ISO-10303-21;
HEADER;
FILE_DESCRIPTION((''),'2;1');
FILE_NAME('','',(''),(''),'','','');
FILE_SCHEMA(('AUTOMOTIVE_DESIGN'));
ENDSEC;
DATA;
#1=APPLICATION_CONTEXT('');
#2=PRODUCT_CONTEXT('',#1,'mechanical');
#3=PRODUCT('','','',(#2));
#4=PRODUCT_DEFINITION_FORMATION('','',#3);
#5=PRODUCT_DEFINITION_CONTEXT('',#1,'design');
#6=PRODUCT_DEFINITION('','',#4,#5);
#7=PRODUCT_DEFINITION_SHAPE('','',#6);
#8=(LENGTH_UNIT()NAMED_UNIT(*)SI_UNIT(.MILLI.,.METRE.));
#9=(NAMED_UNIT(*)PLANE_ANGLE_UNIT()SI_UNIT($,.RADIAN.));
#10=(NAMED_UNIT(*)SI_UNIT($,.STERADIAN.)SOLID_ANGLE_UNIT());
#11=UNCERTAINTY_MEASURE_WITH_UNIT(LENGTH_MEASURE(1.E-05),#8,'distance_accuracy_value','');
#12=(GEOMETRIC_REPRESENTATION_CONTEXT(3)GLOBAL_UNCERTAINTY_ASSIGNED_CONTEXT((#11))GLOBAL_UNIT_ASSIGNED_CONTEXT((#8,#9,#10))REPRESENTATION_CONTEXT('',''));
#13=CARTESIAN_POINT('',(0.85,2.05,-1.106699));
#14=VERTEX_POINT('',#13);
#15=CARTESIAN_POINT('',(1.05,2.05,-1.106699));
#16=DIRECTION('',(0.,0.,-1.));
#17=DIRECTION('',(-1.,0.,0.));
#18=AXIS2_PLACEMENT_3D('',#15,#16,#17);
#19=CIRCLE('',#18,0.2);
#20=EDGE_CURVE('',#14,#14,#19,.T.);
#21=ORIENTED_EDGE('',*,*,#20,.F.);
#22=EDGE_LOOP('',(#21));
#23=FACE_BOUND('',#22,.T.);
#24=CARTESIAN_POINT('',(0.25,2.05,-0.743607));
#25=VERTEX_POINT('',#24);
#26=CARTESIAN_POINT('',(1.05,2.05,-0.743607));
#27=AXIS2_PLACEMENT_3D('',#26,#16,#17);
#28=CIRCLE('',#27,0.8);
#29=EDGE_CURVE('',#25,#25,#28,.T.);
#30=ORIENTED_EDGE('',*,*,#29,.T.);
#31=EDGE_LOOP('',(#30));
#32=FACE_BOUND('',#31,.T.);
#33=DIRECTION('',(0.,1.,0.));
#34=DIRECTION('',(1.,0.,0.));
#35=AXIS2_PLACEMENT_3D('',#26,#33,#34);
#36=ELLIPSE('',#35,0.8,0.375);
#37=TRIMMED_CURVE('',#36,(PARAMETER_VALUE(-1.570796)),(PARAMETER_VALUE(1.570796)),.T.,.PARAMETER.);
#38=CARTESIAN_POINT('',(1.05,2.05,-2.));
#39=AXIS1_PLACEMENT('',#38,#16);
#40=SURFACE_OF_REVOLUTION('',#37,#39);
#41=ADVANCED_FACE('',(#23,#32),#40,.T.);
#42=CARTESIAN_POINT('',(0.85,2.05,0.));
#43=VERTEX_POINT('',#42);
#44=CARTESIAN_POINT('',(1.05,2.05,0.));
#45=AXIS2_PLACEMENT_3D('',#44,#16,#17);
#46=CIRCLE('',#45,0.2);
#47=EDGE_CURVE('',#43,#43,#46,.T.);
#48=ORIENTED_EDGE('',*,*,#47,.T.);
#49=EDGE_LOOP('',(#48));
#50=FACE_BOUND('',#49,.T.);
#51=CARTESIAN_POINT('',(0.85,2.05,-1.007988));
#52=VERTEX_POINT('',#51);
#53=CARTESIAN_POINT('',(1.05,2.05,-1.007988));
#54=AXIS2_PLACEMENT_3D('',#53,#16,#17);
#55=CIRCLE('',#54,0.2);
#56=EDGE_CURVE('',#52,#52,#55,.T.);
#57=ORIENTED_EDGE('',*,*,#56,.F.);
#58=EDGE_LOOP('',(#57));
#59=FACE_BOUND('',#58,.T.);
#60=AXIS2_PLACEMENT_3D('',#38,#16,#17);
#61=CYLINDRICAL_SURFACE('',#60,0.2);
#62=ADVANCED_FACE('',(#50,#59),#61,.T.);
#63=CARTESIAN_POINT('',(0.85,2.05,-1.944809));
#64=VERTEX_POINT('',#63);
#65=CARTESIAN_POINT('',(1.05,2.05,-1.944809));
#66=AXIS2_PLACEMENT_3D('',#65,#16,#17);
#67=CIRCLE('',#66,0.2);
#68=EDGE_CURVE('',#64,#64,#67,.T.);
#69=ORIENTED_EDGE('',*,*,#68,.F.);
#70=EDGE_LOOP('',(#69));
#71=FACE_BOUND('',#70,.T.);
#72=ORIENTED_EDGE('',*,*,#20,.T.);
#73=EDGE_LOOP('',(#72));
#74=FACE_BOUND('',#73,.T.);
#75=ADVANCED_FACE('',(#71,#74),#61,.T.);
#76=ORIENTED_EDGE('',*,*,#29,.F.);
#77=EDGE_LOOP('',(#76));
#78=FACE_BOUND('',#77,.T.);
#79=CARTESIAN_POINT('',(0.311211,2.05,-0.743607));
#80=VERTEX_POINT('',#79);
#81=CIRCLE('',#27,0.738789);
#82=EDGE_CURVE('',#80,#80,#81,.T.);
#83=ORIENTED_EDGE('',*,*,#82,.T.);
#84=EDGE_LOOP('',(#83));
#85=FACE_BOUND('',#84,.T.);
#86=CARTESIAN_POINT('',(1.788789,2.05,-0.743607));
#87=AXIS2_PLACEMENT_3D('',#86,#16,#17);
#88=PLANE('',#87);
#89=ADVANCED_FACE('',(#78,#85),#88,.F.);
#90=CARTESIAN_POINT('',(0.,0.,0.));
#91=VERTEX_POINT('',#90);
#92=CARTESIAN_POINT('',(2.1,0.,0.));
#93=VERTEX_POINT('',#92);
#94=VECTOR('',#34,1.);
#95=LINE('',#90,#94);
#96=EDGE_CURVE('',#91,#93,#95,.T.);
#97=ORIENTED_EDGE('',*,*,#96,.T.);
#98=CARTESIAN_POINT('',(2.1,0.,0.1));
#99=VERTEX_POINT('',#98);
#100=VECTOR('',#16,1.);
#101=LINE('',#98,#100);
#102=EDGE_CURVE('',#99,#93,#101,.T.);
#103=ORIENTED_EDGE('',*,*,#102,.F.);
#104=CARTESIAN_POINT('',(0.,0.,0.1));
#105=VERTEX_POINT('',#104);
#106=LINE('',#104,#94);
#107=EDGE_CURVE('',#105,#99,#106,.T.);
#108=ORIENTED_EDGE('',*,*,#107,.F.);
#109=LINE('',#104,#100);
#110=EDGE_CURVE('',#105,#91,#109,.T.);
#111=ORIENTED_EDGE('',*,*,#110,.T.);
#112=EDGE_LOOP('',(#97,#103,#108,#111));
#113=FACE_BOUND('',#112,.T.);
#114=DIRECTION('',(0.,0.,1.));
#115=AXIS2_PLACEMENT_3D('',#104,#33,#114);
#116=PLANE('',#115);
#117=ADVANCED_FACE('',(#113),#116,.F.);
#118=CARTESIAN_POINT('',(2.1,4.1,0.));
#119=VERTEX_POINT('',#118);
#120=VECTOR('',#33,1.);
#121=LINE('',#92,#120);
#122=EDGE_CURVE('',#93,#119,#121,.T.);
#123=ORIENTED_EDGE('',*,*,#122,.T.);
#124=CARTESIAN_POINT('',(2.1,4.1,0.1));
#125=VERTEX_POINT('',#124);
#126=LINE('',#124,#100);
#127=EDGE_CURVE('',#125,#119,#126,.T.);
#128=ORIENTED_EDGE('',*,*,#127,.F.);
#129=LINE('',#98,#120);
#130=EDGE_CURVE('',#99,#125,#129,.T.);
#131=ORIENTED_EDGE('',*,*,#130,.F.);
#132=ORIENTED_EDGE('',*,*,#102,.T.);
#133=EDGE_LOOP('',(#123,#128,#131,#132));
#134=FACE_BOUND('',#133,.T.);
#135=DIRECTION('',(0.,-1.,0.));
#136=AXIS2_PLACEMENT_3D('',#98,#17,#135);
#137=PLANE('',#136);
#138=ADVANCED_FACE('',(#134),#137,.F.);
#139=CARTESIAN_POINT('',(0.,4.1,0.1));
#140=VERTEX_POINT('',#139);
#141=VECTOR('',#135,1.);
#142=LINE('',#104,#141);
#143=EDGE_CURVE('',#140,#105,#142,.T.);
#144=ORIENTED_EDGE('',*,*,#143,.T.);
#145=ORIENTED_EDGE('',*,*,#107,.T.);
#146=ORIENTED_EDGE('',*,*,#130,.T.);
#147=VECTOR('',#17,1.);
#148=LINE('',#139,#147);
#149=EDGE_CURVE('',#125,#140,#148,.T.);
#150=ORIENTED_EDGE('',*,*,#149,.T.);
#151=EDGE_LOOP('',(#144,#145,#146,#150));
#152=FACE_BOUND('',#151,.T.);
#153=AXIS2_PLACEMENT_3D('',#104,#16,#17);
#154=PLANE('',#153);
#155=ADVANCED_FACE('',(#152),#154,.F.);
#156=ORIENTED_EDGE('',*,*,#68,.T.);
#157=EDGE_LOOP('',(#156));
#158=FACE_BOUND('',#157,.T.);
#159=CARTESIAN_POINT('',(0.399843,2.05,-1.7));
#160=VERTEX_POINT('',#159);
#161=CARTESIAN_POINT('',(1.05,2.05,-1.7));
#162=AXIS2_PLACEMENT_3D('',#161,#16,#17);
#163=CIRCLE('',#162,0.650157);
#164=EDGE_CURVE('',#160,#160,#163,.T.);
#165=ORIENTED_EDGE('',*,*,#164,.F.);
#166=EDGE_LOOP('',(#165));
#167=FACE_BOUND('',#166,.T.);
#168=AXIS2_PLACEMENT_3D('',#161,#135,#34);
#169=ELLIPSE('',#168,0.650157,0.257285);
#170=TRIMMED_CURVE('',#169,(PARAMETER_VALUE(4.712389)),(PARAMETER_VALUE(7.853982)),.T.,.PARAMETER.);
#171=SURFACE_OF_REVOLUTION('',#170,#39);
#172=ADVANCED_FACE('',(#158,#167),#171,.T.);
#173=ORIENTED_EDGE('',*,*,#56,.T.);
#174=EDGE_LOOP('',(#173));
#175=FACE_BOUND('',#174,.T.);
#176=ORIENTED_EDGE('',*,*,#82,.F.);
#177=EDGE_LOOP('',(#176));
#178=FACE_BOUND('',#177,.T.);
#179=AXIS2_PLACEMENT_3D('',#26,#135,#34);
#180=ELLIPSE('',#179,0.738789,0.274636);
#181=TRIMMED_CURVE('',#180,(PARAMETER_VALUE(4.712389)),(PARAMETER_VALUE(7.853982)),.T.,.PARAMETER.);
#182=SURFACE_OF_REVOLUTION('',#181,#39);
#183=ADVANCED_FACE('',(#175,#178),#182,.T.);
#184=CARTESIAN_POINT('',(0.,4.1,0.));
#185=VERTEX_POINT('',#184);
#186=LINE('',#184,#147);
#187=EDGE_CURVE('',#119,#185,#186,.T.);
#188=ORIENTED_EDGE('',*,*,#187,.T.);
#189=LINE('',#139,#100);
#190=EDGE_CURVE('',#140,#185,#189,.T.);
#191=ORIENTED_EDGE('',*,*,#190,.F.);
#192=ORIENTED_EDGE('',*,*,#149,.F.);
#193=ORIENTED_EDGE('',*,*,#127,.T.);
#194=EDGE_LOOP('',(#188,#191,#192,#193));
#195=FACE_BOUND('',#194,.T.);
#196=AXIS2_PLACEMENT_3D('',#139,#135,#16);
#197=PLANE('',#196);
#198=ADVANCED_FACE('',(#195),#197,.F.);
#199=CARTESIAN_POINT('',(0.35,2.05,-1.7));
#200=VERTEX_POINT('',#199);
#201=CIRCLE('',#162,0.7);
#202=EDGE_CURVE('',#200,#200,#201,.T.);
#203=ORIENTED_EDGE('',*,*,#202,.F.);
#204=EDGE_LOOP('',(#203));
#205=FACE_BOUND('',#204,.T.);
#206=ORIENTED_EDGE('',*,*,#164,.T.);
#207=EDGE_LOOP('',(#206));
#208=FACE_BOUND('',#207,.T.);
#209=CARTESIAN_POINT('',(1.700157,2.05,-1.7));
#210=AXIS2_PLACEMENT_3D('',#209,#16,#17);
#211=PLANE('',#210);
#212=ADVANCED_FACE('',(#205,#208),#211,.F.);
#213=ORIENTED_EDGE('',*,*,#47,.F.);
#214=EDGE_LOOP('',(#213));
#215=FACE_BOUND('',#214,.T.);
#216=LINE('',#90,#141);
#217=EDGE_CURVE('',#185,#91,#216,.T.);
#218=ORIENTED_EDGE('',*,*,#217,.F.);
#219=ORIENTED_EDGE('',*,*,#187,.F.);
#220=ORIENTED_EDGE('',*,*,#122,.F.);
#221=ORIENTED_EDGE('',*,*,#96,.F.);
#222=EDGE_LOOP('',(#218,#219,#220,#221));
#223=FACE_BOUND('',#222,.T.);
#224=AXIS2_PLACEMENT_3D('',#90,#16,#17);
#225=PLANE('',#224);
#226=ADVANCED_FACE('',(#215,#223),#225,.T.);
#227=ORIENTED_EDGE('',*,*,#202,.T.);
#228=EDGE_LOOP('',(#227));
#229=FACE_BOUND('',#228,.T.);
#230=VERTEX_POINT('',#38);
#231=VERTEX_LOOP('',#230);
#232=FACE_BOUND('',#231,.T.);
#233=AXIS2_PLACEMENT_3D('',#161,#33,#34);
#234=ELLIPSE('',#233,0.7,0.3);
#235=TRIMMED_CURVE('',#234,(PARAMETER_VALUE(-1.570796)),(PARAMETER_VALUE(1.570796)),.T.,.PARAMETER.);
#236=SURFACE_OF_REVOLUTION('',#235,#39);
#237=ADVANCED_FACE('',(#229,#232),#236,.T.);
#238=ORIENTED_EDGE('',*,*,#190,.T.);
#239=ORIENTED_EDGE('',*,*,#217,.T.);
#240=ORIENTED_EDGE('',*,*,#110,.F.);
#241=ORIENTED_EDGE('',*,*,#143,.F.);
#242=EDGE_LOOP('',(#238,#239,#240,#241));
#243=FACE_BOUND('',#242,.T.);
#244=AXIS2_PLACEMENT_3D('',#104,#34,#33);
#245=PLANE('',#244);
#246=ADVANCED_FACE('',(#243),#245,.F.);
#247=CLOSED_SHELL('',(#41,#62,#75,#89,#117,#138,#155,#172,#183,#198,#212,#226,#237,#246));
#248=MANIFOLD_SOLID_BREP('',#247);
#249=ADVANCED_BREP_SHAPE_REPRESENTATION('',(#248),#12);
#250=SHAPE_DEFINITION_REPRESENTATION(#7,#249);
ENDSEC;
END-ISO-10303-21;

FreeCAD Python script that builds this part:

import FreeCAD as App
import Part
import Sketcher
from FreeCAD import Vector
Q = App.Units.Quantity

doc = App.newDocument("Part")
body = doc.addObject("PartDesign::Body", "Body")

# Sketch on XY plane
sketch1 = body.newObject("Sketcher::SketchObject", "Sketch")
sketch1.AttachmentSupport = (doc.getObject("XY_Plane"), [""])
sketch1.MapMode = "FlatFace"
sketch1.addGeometry([
    Part.LineSegment(Vector(0, 4.1, 0), Vector(0, 0, 0)),
    Part.LineSegment(Vector(0, 0, 0), Vector(2.1, 0, 0)),
    Part.LineSegment(Vector(2.1, 0, 0), Vector(2.1, 4.1, 0)),
    Part.LineSegment(Vector(2.1, 4.1, 0), Vector(0, 4.1, 0)),
], False)
sketch1.addConstraint([
    Sketcher.Constraint("Coincident", 0, 2, 1, 1),
    Sketcher.Constraint("Coincident", 1, 2, 2, 1),
    Sketcher.Constraint("Coincident", 2, 2, 3, 1),
    Sketcher.Constraint("Coincident", 3, 2, 0, 1),
    Sketcher.Constraint("Vertical", 0),
    Sketcher.Constraint("Horizontal", 1),
    Sketcher.Constraint("Vertical", 2),
    Sketcher.Constraint("Horizontal", 3),
    Sketcher.Constraint("Coincident", 0, 2, -1, 1),
    Sketcher.Constraint("DistanceX", 1, 1, 1, 2, Q("2.1 mm")),
    Sketcher.Constraint("DistanceY", 0, 2, 0, 1, Q("4.1 mm")),
])
pad1 = body.newObject("PartDesign::Pad", "Pad")
pad1.Profile = sketch1
pad1.Length = 0.1

# Sketch on XZ plane
sketch2 = body.newObject("Sketcher::SketchObject", "Sketch001")
sketch2.AttachmentSupport = (doc.getObject("XZ_Plane"), [""])
sketch2.MapMode = "FlatFace"
sketch2.AttachmentOffset = App.Placement(Vector(0, 0, -2.05), App.Rotation())
sketch2.addGeometry([
    Part.LineSegment(Vector(1.05, 0, 0), Vector(1.25, 0, 0)),  # 0
    Part.LineSegment(Vector(1.25, 0, 0), Vector(1.25, -1.007988, 0)),  # 1
    Part.BSplineCurve([Vector(1.788789, -0.743607, 0), Vector(1.788789, -0.951664, 0), Vector(1.25, -1.007988, 0)], [3, 3], [0, 1.296662385], False, 2, [1, 0.797092629, 1], False),  # 2
    Part.LineSegment(Vector(1.788789, -0.743607, 0), Vector(1.85, -0.743607, 0)),  # 3
    Part.BSplineCurve([Vector(1.85, -0.743607, 0), Vector(1.85, -1.034081, 0), Vector(1.25, -1.106699, 0)], [3, 3], [0, 1.318116072], False, 2, [1, 0.790569415, 1], False),  # 4
    Part.LineSegment(Vector(1.25, -1.106699, 0), Vector(1.25, -1.944809, 0)),  # 5
    Part.BSplineCurve([Vector(1.700157, -1.7, 0), Vector(1.700157, -1.887218, 0), Vector(1.25, -1.944809, 0)], [3, 3], [0, 1.258107861], False, 2, [1, 0.808584519, 1], False),  # 6
    Part.LineSegment(Vector(1.700157, -1.7, 0), Vector(1.75, -1.7, 0)),  # 7
    Part.BSplineCurve([Vector(1.75, -1.7, 0), Vector(1.75, -2, 0), Vector(1.05, -2, 0)], [3, 3], [0, 1.570796327], False, 2, [1, 0.707106781, 1], False),  # 8
    Part.LineSegment(Vector(1.05, -2, 0), Vector(1.05, 0, 0)),  # 9
], False)
sketch2.addGeometry(Part.LineSegment(Vector(1.05, -2, 0), Vector(1.05, 0, 0)), True)  # axis
sketch2.addConstraint([
    Sketcher.Constraint("Block", 2),
    Sketcher.Constraint("Block", 4),
    Sketcher.Constraint("Block", 6),
    Sketcher.Constraint("Block", 8),
    Sketcher.Constraint("Coincident", 0, 2, 1, 1),
    Sketcher.Constraint("Coincident", 1, 2, 2, 2),
    Sketcher.Constraint("Coincident", 2, 1, 3, 1),
    Sketcher.Constraint("Coincident", 3, 2, 4, 1),
    Sketcher.Constraint("Coincident", 4, 2, 5, 1),
    Sketcher.Constraint("Coincident", 5, 2, 6, 2),
    Sketcher.Constraint("Coincident", 6, 1, 7, 1),
    Sketcher.Constraint("Coincident", 7, 2, 8, 1),
    Sketcher.Constraint("Coincident", 8, 2, 9, 1),
    Sketcher.Constraint("Coincident", 9, 2, 0, 1),
    Sketcher.Constraint("Horizontal", 0),
    Sketcher.Constraint("Vertical", 1),
    Sketcher.Constraint("Vertical", 9),
    Sketcher.Constraint("Vertical", 10),
    Sketcher.Constraint("Coincident", 10, 2, 9, 2),
    Sketcher.Constraint("PointOnObject", 0, 2, -1),
    Sketcher.Constraint("Equal", 9, 10),
])
revolution = body.newObject("PartDesign::Revolution", "Revolution")
revolution.Profile = sketch2
revolution.ReferenceAxis = (sketch2, ["Axis0"])
revolution.Angle = 360

doc.recompute()
